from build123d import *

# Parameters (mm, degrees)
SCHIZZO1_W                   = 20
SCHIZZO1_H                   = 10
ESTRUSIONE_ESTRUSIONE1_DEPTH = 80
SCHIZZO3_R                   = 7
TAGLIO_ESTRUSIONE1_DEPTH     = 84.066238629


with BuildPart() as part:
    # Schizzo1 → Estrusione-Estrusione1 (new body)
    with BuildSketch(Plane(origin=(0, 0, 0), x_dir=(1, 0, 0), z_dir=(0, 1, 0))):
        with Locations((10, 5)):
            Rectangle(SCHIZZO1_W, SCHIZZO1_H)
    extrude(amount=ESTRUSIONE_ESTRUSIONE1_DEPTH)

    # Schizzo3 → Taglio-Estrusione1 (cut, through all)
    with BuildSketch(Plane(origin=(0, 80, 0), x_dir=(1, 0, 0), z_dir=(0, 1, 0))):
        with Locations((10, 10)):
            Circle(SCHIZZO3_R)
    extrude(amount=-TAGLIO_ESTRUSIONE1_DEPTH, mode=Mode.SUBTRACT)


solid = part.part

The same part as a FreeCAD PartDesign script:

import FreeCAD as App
import Part
import Sketcher

V = App.Vector


def add_polygon(sketch, points):
    """Adds a closed chain of lines whose ends are joined by coincident constraints."""
    first, n = sketch.GeometryCount, len(points)
    for a, b in zip(points, points[1:] + points[:1]):
        sketch.addGeometry(Part.LineSegment(App.Vector(*a, 0), App.Vector(*b, 0)), False)
    for i in range(n):
        sketch.addConstraint(Sketcher.Constraint("Coincident", first + i, 2, first + (i + 1) % n, 1))

doc = App.newDocument("Part")
body = doc.addObject("PartDesign::Body", "Body")

sketch1 = body.newObject("Sketcher::SketchObject", "Sketch")
sketch1.AttachmentSupport = (doc.getObject("XZ_Plane"), [""])
sketch1.MapMode = "FlatFace"
add_polygon(sketch1, [(0, -10), (0, 0), (20, 0), (20, -10)])
sketch1.addConstraint(Sketcher.Constraint("Vertical", 0))
sketch1.addConstraint(Sketcher.Constraint("Horizontal", 1))
sketch1.addConstraint(Sketcher.Constraint("Vertical", 2))
sketch1.addConstraint(Sketcher.Constraint("Horizontal", 3))
sketch1.addConstraint(Sketcher.Constraint("Coincident", 0, 2, -1, 1))
sketch1.addConstraint(Sketcher.Constraint("DistanceX", 1, 1, 1, 2, 20.0))
sketch1.addConstraint(Sketcher.Constraint("DistanceY", 0, 1, 0, 2, 10.0))
pad1 = body.newObject("PartDesign::Pad", "Pad")
pad1.Profile = sketch1
pad1.Length = 80
pad1.Reversed = True

sketch2 = body.newObject("Sketcher::SketchObject", "Sketch001")
sketch2.AttachmentSupport = (doc.getObject("XZ_Plane"), [""])
sketch2.MapMode = "FlatFace"
sketch2.AttachmentOffset = App.Placement(V(0, 0, -80), App.Rotation())
sketch2.addGeometry(Part.Circle(V(10, -10, 0), V(0, 0, 1), 7), False)
sketch2.addConstraint(Sketcher.Constraint("Diameter", 0, 14.0))
sketch2.addConstraint(Sketcher.Constraint("DistanceX", -1, 1, 0, 3, 10.0))
sketch2.addConstraint(Sketcher.Constraint("DistanceY", 0, 3, -1, 1, 10.0))
pocket1 = body.newObject("PartDesign::Pocket", "Pocket")
pocket1.Profile = sketch2
pocket1.Type = "ThroughAll"
pocket1.Reversed = True

doc.recompute()
